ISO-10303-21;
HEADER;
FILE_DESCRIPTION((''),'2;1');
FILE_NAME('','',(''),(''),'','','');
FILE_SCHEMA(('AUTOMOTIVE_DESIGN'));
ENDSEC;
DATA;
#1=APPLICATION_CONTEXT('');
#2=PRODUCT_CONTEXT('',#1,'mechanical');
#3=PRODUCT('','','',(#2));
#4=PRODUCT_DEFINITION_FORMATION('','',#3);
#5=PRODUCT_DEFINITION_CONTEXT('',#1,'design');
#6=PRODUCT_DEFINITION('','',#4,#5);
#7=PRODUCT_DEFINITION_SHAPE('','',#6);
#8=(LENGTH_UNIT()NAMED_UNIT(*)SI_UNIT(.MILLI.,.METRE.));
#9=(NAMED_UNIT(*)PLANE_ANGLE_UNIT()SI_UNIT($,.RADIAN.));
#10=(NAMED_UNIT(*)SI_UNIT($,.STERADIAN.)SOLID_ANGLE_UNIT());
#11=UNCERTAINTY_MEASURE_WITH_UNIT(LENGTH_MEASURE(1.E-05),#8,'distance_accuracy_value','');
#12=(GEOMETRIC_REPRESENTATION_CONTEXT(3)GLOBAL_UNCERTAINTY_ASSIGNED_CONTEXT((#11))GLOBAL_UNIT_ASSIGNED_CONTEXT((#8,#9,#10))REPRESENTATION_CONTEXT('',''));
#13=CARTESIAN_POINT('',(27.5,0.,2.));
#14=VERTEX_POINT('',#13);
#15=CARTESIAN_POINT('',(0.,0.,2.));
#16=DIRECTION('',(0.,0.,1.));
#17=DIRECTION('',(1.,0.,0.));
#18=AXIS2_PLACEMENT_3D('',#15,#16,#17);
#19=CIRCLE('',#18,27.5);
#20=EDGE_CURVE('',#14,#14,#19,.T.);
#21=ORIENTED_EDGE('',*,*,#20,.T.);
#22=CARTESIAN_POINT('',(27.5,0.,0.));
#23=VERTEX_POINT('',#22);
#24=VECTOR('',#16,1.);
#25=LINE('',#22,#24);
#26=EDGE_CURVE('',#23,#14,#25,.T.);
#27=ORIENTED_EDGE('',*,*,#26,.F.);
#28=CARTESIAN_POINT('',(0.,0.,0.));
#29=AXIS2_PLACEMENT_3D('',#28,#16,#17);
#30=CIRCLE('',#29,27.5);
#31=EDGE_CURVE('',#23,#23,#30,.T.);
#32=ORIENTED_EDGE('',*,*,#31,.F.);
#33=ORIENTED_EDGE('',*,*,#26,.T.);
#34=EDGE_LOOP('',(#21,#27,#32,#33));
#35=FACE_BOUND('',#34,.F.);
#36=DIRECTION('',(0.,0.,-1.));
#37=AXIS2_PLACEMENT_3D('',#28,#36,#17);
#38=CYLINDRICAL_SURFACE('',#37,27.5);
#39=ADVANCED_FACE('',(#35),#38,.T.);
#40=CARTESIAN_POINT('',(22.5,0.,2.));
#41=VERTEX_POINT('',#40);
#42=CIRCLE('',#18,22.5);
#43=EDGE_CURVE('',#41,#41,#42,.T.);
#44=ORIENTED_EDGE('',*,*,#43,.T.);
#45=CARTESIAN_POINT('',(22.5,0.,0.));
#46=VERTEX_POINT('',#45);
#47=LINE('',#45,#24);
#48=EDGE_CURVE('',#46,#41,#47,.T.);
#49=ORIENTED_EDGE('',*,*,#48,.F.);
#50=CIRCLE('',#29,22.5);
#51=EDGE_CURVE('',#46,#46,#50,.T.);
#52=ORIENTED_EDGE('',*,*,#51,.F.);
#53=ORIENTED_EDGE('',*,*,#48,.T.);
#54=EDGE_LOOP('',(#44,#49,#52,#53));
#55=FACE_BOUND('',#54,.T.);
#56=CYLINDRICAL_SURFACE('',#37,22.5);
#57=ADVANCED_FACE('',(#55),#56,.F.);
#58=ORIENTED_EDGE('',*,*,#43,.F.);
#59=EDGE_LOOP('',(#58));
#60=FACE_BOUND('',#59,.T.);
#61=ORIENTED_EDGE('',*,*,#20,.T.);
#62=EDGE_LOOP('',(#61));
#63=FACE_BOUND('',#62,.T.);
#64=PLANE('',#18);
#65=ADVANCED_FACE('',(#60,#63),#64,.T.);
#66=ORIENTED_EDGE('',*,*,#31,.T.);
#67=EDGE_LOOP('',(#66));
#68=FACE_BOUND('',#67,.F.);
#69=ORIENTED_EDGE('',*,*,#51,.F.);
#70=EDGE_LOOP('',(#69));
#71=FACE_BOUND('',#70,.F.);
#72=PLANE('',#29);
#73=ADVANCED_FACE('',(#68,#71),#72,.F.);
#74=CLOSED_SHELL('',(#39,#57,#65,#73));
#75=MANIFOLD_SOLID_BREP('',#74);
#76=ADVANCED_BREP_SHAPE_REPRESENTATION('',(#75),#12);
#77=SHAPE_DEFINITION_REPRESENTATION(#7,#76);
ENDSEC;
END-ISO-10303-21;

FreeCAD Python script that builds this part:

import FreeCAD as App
import Part
import Sketcher
from FreeCAD import Vector
Q = App.Units.Quantity

doc = App.newDocument("Part")
body = doc.addObject("PartDesign::Body", "Body")

# Sketch on XY plane
sketch1 = doc.addObject("Sketcher::SketchObject", "Sketch")
body.addObject(sketch1)
sketch1.AttachmentSupport = (doc.XY_Plane, [""])
sketch1.MapMode = "FlatFace"
sketch1.addGeometry([
    Part.Circle(Vector(0, 0, 0), Vector(0, 0, 1), 28),
    Part.Circle(Vector(0, 0, 0), Vector(0, 0, 1), 22),
], False)
sketch1.addConstraint([
    Sketcher.Constraint("Coincident", 0, 3, -1, 1),
    Sketcher.Constraint("Coincident", 1, 3, -1, 1),
    Sketcher.Constraint("Diameter", 0, Q("55 mm")),
    Sketcher.Constraint("Diameter", 1, Q("45 mm")),
])
pad1 = doc.addObject("PartDesign::Pad", "Pad")
body.addObject(pad1)
pad1.Profile = sketch1
pad1.Length = 2

doc.recompute()
